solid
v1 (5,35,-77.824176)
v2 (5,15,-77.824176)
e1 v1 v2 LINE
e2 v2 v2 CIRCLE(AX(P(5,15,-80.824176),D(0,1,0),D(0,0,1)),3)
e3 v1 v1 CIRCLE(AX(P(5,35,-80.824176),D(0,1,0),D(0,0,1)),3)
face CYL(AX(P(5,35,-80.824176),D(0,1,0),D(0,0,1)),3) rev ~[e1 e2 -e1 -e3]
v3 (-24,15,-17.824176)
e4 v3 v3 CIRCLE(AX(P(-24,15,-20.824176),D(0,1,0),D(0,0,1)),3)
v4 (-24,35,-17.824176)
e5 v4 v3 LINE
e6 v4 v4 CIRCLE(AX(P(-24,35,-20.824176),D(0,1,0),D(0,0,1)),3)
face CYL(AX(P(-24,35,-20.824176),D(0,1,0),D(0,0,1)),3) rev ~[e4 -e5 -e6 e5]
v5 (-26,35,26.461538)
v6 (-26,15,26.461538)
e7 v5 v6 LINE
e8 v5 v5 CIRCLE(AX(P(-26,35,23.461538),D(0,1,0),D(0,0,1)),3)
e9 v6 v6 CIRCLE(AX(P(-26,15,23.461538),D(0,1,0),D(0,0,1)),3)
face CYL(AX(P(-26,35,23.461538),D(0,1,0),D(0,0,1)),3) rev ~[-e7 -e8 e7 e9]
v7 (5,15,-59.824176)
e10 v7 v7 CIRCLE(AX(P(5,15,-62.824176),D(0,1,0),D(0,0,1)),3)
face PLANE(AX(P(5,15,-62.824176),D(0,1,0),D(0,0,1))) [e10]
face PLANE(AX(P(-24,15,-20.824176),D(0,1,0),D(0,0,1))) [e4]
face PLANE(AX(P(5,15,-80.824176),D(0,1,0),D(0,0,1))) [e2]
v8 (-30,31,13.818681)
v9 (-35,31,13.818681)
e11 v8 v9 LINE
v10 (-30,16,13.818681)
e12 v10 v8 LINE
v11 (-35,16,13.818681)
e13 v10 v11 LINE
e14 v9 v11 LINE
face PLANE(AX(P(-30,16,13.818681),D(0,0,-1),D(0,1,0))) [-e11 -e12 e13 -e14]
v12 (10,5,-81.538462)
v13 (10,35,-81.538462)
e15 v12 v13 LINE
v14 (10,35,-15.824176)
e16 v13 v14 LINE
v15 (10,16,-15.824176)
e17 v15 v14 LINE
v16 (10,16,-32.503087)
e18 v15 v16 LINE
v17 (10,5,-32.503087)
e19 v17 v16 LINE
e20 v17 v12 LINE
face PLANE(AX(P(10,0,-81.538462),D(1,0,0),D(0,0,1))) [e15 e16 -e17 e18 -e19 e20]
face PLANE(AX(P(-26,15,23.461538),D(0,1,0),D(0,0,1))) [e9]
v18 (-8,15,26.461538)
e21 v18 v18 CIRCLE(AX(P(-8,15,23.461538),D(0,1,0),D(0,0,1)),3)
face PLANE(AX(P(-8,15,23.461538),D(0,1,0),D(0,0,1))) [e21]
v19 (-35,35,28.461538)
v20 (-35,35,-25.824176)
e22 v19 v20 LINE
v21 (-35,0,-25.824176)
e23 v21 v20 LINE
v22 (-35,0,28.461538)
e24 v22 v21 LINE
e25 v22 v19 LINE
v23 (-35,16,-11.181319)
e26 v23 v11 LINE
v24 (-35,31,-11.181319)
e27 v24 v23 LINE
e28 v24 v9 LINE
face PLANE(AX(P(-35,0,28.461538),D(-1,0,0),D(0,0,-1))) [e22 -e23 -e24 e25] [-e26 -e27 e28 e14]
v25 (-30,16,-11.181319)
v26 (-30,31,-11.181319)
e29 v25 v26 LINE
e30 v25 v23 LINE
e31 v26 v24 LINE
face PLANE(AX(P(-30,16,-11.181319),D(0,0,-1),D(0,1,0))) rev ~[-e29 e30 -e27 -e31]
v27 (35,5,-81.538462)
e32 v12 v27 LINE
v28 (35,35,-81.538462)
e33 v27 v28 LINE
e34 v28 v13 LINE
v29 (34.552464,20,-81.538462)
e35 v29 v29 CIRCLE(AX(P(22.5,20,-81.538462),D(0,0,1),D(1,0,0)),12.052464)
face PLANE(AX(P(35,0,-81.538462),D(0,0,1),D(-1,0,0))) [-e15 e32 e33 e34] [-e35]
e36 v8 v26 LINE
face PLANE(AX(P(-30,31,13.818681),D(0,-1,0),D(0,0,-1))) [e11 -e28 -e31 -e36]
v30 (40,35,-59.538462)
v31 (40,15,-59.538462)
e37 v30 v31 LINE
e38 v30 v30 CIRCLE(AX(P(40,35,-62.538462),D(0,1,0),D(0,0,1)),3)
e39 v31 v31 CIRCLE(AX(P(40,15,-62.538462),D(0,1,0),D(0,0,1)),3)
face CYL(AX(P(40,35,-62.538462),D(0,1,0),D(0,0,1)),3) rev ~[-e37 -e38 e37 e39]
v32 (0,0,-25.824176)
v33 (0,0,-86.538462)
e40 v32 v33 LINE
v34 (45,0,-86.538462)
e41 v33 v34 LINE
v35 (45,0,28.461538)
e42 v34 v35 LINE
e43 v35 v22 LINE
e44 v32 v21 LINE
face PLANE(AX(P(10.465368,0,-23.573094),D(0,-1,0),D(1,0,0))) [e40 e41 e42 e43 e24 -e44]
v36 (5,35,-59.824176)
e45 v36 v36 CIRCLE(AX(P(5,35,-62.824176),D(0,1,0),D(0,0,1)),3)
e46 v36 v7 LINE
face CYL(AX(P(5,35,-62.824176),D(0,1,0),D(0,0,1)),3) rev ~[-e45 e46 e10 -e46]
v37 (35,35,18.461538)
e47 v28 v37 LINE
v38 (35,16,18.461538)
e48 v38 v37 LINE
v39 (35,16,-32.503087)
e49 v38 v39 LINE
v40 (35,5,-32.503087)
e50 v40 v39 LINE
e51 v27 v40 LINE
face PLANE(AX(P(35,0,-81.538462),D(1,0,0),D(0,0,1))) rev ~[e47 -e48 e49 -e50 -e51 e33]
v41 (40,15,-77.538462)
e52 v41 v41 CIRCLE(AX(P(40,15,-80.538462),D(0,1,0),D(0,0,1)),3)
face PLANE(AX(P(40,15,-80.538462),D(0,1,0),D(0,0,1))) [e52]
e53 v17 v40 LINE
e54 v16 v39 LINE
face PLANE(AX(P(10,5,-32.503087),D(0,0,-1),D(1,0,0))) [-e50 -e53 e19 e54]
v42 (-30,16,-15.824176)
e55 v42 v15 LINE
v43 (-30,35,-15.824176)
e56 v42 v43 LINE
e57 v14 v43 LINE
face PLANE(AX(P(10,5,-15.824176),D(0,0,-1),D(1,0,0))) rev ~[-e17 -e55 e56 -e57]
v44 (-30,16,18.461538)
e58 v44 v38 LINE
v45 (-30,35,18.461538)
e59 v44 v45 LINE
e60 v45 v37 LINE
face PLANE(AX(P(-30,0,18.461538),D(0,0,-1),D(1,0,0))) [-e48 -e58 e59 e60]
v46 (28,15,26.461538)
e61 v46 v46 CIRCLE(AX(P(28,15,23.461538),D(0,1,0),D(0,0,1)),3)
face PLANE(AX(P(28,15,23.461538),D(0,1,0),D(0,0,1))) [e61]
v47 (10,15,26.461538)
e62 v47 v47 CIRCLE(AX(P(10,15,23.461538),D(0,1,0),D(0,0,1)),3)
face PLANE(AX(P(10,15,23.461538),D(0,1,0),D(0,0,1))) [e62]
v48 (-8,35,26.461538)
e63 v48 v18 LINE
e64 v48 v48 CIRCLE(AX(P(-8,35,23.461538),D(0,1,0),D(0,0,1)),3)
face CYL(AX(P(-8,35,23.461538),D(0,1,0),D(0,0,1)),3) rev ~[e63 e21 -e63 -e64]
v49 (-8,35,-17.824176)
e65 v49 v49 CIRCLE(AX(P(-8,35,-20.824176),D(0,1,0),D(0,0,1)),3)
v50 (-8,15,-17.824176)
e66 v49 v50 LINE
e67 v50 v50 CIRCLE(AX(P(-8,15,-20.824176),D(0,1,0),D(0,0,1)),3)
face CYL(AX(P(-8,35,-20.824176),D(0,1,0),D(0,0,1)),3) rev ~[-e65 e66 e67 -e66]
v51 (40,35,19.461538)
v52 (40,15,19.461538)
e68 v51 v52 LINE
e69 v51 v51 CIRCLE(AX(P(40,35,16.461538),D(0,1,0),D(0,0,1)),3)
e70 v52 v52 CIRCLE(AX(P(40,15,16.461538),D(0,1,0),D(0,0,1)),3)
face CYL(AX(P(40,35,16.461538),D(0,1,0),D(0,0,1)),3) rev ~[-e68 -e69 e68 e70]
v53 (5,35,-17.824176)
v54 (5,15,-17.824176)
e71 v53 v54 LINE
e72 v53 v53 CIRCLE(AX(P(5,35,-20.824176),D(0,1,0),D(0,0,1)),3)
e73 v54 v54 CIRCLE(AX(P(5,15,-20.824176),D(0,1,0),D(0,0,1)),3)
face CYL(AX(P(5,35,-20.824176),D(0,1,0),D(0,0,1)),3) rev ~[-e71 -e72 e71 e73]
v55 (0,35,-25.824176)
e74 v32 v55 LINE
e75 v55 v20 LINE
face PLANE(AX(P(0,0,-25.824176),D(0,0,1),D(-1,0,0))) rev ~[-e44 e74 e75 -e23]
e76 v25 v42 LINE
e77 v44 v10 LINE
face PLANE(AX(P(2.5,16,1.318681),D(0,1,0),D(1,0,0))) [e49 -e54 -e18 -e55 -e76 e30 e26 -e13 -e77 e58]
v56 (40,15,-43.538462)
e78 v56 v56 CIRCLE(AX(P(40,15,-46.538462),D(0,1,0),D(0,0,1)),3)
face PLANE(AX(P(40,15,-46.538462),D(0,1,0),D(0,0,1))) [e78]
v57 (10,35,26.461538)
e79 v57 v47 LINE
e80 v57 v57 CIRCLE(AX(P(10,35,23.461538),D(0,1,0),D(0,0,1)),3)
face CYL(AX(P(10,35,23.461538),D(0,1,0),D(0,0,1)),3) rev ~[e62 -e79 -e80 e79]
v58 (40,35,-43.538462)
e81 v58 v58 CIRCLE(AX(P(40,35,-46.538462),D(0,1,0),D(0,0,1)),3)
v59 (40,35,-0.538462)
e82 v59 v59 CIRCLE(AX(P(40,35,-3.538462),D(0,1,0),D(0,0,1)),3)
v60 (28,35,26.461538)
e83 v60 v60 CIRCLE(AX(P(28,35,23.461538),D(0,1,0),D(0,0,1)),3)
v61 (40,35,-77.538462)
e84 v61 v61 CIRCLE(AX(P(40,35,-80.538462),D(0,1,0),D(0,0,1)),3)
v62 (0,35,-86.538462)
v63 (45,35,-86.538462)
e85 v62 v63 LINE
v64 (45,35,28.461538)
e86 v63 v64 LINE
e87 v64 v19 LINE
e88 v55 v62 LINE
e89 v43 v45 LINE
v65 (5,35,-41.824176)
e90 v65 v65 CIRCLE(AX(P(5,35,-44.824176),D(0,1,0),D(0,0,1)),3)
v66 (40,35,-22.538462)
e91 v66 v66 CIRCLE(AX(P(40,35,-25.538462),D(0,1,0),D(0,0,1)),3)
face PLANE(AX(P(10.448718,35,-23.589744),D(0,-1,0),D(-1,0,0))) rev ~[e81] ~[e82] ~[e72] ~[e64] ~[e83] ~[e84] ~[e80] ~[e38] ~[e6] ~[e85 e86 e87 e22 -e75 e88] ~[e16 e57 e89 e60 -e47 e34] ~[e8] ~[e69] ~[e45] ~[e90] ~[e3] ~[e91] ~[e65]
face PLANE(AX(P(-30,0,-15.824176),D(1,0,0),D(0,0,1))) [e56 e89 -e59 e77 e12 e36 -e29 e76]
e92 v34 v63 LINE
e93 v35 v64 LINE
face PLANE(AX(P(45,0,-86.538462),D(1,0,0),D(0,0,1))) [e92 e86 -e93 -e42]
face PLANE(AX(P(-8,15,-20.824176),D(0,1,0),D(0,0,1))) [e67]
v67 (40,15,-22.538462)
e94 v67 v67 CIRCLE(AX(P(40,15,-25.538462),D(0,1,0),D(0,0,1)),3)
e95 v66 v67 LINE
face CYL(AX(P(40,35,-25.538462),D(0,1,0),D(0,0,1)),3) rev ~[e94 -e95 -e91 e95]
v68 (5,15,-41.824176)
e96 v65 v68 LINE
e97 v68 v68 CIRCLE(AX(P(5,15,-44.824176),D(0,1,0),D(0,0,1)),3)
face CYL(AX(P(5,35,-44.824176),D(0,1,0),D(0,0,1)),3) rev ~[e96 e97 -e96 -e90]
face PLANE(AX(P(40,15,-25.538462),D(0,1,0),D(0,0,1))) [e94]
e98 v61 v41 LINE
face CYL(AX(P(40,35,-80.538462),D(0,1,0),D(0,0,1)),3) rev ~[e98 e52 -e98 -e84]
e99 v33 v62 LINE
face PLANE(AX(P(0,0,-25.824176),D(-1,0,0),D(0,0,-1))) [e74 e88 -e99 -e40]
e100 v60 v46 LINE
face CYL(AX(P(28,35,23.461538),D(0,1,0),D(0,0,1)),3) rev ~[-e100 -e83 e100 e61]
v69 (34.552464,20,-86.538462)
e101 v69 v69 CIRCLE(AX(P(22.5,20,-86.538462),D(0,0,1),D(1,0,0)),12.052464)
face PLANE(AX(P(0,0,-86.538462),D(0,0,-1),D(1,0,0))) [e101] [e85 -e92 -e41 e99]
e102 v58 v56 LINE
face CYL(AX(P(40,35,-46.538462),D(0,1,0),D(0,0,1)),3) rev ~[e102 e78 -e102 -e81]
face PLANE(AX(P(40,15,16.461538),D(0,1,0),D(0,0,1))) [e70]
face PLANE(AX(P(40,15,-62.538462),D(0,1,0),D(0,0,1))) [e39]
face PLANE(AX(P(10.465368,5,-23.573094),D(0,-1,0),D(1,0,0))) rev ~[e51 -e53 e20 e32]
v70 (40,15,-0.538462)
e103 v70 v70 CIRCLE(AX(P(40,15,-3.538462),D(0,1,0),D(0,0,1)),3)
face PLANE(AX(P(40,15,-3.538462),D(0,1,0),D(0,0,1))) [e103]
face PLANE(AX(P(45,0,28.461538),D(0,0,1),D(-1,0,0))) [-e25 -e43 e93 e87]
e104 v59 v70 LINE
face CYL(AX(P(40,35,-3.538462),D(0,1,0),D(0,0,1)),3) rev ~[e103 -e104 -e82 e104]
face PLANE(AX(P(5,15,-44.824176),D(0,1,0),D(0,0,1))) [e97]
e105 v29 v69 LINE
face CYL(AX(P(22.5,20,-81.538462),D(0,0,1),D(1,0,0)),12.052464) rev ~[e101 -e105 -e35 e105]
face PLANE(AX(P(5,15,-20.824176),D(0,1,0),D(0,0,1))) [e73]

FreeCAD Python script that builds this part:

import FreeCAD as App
import Part
import Sketcher

V = App.Vector
Q = App.Units.Quantity


def add_polygon(sketch, points):
    """Adds a closed chain of lines whose ends are joined by coincident constraints."""
    first, n = sketch.GeometryCount, len(points)
    for a, b in zip(points, points[1:] + points[:1]):
        sketch.addGeometry(Part.LineSegment(App.Vector(*a, 0), App.Vector(*b, 0)), False)
    for i in range(n):
        sketch.addConstraint(Sketcher.Constraint("Coincident", first + i, 2, first + (i + 1) % n, 1))

doc = App.newDocument("Part")
params = doc.addObject("Spreadsheet::Sheet", "Params")
for row, (alias, value) in enumerate([
    ("sketch1_width", "35 mm"),
    ("sketch1_width2", "80 mm"),
    ("sketch1_width3", "40 mm"),
    ("sketch1_width4", "25 mm"),
    ("sketch1_height", "115 mm"),
    ("pad1_length", "35 mm"),
    ("sketch2_width", "65 mm"),
    ("sketch2_width2", "40 mm"),
    ("sketch2_height", "100 mm"),
    ("pad2_length", "5 mm"),
    ("sketch3_diameter", "6 mm"),
    ("pocket1_length", "20 mm"),
    ("sketch4_width", "25 mm"),
    ("pad3_length", "11 mm"),
    ("sketch5_width", "65 mm"),
    ("pad4_length", "11 mm"),
    ("pocket2_length", "11 mm"),
    ("sketch7_width", "15 mm"),
    ("sketch7_height", "25 mm"),
    ("pocket3_length", "11 mm"),
], start=1):
    params.set(f"A{row}", alias)
    params.set(f"B{row}", "=" + value)
    params.setAlias(f"B{row}", alias)

body = doc.addObject("PartDesign::Body", "Body")

# Sketch on XZ plane
sketch1 = body.newObject("Sketcher::SketchObject", "Sketch")
sketch1.AttachmentSupport = (doc.getObject("XZ_Plane"), [""])
sketch1.MapMode = "FlatFace"
add_polygon(sketch1, [(0, -25.824176), (-35, -25.824176), (-35, 28.461538), (45, 28.461538), (45, -86.538462), (0, -86.538462)])  # lines 0-5
add_polygon(sketch1, [(-30, 18.461538), (-30, -15.824176), (10, -15.824176), (10, -81.538462), (35, -81.538462), (35, 18.461538)])  # lines 6-11
sketch1.addConstraint([
    Sketcher.Constraint("Horizontal", 0),
    Sketcher.Constraint("Vertical", 1),
    Sketcher.Constraint("Horizontal", 2),
    Sketcher.Constraint("Vertical", 3),
    Sketcher.Constraint("Horizontal", 4),
    Sketcher.Constraint("Vertical", 5),
    Sketcher.Constraint("Vertical", 6),
    Sketcher.Constraint("Horizontal", 7),
    Sketcher.Constraint("Vertical", 8),
    Sketcher.Constraint("Horizontal", 9),
    Sketcher.Constraint("Vertical", 10),
    Sketcher.Constraint("Horizontal", 11),
    Sketcher.Constraint("PointOnObject", 4, 2, -2),
    Sketcher.Constraint("DistanceX", 0, 2, 0, 1, Q("35 mm")),
    Sketcher.Constraint("DistanceX", 2, 1, 2, 2, Q("80 mm")),
    Sketcher.Constraint("DistanceX", 7, 1, 7, 2, Q("40 mm")),
    Sketcher.Constraint("DistanceX", 9, 1, 9, 2, Q("25 mm")),
    Sketcher.Constraint("DistanceY", 3, 2, 3, 1, Q("115 mm")),
    Sketcher.Constraint("DistanceY", 10, 1, 10, 2, Q("100 mm")),
    Sketcher.Constraint("DistanceX", 6, 2, -1, 1, Q("30 mm")),
    Sketcher.Constraint("DistanceY", 0, 2, 6, 2, Q("10 mm")),
    Sketcher.Constraint("DistanceY", 4, 2, 8, 2, Q("5 mm")),
    Sketcher.Constraint("DistanceY", 1, 1, 1, 2, Q("54.285714 mm")),
    Sketcher.Constraint("DistanceY", -1, 1, 1, 2, Q("28.461538 mm")),
])
sketch1.setExpression("Constraints[25]", "Params.sketch1_width")
sketch1.setExpression("Constraints[26]", "Params.sketch1_width2")
sketch1.setExpression("Constraints[27]", "Params.sketch1_width3")
sketch1.setExpression("Constraints[28]", "Params.sketch1_width4")
sketch1.setExpression("Constraints[29]", "Params.sketch1_height")
pad1 = body.newObject("PartDesign::Pad", "Pad")
pad1.Profile = sketch1
pad1.setExpression("Length", "Params.pad1_length")
pad1.Reversed = True

# Sketch on XZ plane
sketch2 = body.newObject("Sketcher::SketchObject", "Sketch001")
sketch2.AttachmentSupport = (doc.getObject("XZ_Plane"), [""])
sketch2.MapMode = "FlatFace"
add_polygon(sketch2, [(35, -81.538462), (35, 18.461538), (-30, 18.461538), (-30, -15.824176), (10, -15.824176), (10, -81.538462)])  # lines 0-5
sketch2.addConstraint([
    Sketcher.Constraint("Vertical", 0),
    Sketcher.Constraint("Horizontal", 1),
    Sketcher.Constraint("Vertical", 2),
    Sketcher.Constraint("Horizontal", 3),
    Sketcher.Constraint("Vertical", 4),
    Sketcher.Constraint("Horizontal", 5),
    Sketcher.Constraint("DistanceX", 1, 2, 1, 1, Q("65 mm")),
    Sketcher.Constraint("DistanceX", 3, 1, 3, 2, Q("40 mm")),
    Sketcher.Constraint("DistanceY", 0, 1, 0, 2, Q("100 mm")),
    Sketcher.Constraint("DistanceX", -1, 1, 0, 2, Q("35 mm")),
    Sketcher.Constraint("DistanceY", 2, 2, 2, 1, Q("34.285714 mm")),
    Sketcher.Constraint("DistanceY", -1, 1, 0, 2, Q("18.461538 mm")),
])
sketch2.setExpression("Constraints[12]", "Params.sketch2_width")
sketch2.setExpression("Constraints[13]", "Params.sketch2_width2")
sketch2.setExpression("Constraints[14]", "Params.sketch2_height")
pad2 = body.newObject("PartDesign::Pad", "Pad001")
pad2.Profile = sketch2
pad2.setExpression("Length", "Params.pad2_length")
pad2.Reversed = True

# Sketch on XZ plane
sketch3 = body.newObject("Sketcher::SketchObject", "Sketch002")
sketch3.AttachmentSupport = (doc.getObject("XZ_Plane"), [""])
sketch3.MapMode = "FlatFace"
sketch3.AttachmentOffset = App.Placement(V(0, 0, -35), App.Rotation())
sketch3.addGeometry([
    Part.Circle(V(40, -80.538462, 0), V(0, 0, 1), 3),  # 0
    Part.Circle(V(40, -62.538462, 0), V(0, 0, 1), 3),  # 1
    Part.Circle(V(40, -46.538462, 0), V(0, 0, 1), 3),  # 2
    Part.Circle(V(40, -25.538462, 0), V(0, 0, 1), 3),  # 3
    Part.Circle(V(40, -3.538462, 0), V(0, 0, 1), 3),  # 4
    Part.Circle(V(40, 16.461538, 0), V(0, 0, 1), 3),  # 5
    Part.Circle(V(5, -80.824176, 0), V(0, 0, 1), 3),  # 6
    Part.Circle(V(5, -62.824176, 0), V(0, 0, 1), 3),  # 7
    Part.Circle(V(5, -44.824176, 0), V(0, 0, 1), 3),  # 8
    Part.Circle(V(-24, -20.824176, 0), V(0, 0, 1), 3),  # 9
    Part.Circle(V(-8, -20.824176, 0), V(0, 0, 1), 3),  # 10
    Part.Circle(V(5, -20.824176, 0), V(0, 0, 1), 3),  # 11
    Part.Circle(V(-26, 23.461538, 0), V(0, 0, 1), 3),  # 12
    Part.Circle(V(-8, 23.461538, 0), V(0, 0, 1), 3),  # 13
    Part.Circle(V(10, 23.461538, 0), V(0, 0, 1), 3),  # 14
    Part.Circle(V(28, 23.461538, 0), V(0, 0, 1), 3),  # 15
], False)
sketch3.addConstraint([
    Sketcher.Constraint("Equal", 0, 1),
    Sketcher.Constraint("Equal", 1, 2),
    Sketcher.Constraint("Equal", 2, 3),
    Sketcher.Constraint("Equal", 3, 4),
    Sketcher.Constraint("Equal", 4, 5),
    Sketcher.Constraint("Equal", 5, 6),
    Sketcher.Constraint("Equal", 6, 7),
    Sketcher.Constraint("Equal", 7, 8),
    Sketcher.Constraint("Equal", 8, 9),
    Sketcher.Constraint("Equal", 9, 10),
    Sketcher.Constraint("Equal", 10, 11),
    Sketcher.Constraint("Equal", 11, 12),
    Sketcher.Constraint("Equal", 12, 13),
    Sketcher.Constraint("Equal", 13, 14),
    Sketcher.Constraint("Equal", 14, 15),
    Sketcher.Constraint("Horizontal", 9, 3, 10, 3),
    Sketcher.Constraint("Horizontal", 10, 3, 11, 3),
    Sketcher.Constraint("Horizontal", 12, 3, 13, 3),
    Sketcher.Constraint("Horizontal", 13, 3, 14, 3),
    Sketcher.Constraint("Horizontal", 14, 3, 15, 3),
    Sketcher.Constraint("Vertical", 0, 3, 1, 3),
    Sketcher.Constraint("Vertical", 1, 3, 2, 3),
    Sketcher.Constraint("Vertical", 2, 3, 3, 3),
    Sketcher.Constraint("Vertical", 3, 3, 4, 3),
    Sketcher.Constraint("Vertical", 4, 3, 5, 3),
    Sketcher.Constraint("Vertical", 6, 3, 7, 3),
    Sketcher.Constraint("Vertical", 7, 3, 8, 3),
    Sketcher.Constraint("Vertical", 8, 3, 11, 3),
    Sketcher.Constraint("Vertical", 10, 3, 13, 3),
    Sketcher.Constraint("Diameter", 0, Q("6 mm")),
    Sketcher.Constraint("DistanceX", -1, 1, 0, 3, Q("40 mm")),
    Sketcher.Constraint("DistanceX", -1, 1, 6, 3, Q("5 mm")),
    Sketcher.Constraint("DistanceX", 9, 3, -1, 1, Q("24 mm")),
    Sketcher.Constraint("DistanceX", 10, 3, -1, 1, Q("8 mm")),
    Sketcher.Constraint("DistanceX", 12, 3, -1, 1, Q("26 mm")),
    Sketcher.Constraint("DistanceX", -1, 1, 14, 3, Q("10 mm")),
    Sketcher.Constraint("DistanceX", -1, 1, 15, 3, Q("28 mm")),
    Sketcher.Constraint("DistanceY", 0, 3, 1, 3, Q("18 mm")),
    Sketcher.Constraint("DistanceY", 1, 3, 2, 3, Q("16 mm")),
    Sketcher.Constraint("DistanceY", 2, 3, 3, 3, Q("21 mm")),
    Sketcher.Constraint("DistanceY", 3, 3, 4, 3, Q("22 mm")),
    Sketcher.Constraint("DistanceY", 4, 3, 5, 3, Q("20 mm")),
    Sketcher.Constraint("DistanceY", 6, 3, 7, 3, Q("18 mm")),
    Sketcher.Constraint("DistanceY", 7, 3, 8, 3, Q("18 mm")),
    Sketcher.Constraint("DistanceY", 8, 3, 9, 3, Q("24 mm")),
    Sketcher.Constraint("DistanceY", 5, 3, 12, 3, Q("7 mm")),
    Sketcher.Constraint("DistanceY", 0, 3, -1, 1, Q("80.538462 mm")),
    Sketcher.Constraint("DistanceY", 6, 3, -1, 1, Q("80.824176 mm")),
])
sketch3.setExpression("Constraints[29]", "Params.sketch3_diameter")
pocket1 = body.newObject("PartDesign::Pocket", "Pocket")
pocket1.Profile = sketch3
pocket1.setExpression("Length", "Params.pocket1_length")
pocket1.Reversed = True

# Sketch on XZ plane
sketch4 = body.newObject("Sketcher::SketchObject", "Sketch003")
sketch4.AttachmentSupport = (doc.getObject("XZ_Plane"), [""])
sketch4.MapMode = "FlatFace"
sketch4.AttachmentOffset = App.Placement(V(0, 0, -5), App.Rotation())
add_polygon(sketch4, [(10, -32.503087), (10, -15.824176), (35, -15.824176), (35, -32.503087)])  # lines 0-3
sketch4.addConstraint([
    Sketcher.Constraint("Vertical", 0),
    Sketcher.Constraint("Horizontal", 1),
    Sketcher.Constraint("Vertical", 2),
    Sketcher.Constraint("Horizontal", 3),
    Sketcher.Constraint("DistanceX", 1, 1, 1, 2, Q("25 mm")),
    Sketcher.Constraint("DistanceX", -1, 1, 0, 2, Q("10 mm")),
    Sketcher.Constraint("DistanceY", 0, 1, 0, 2, Q("16.678911 mm")),
    Sketcher.Constraint("DistanceY", 0, 2, -1, 1, Q("15.824176 mm")),
])
sketch4.setExpression("Constraints[8]", "Params.sketch4_width")
pad3 = body.newObject("PartDesign::Pad", "Pad002")
pad3.Profile = sketch4
pad3.setExpression("Length", "Params.pad3_length")
pad3.Reversed = True

# Sketch on XZ plane
sketch5 = body.newObject("Sketcher::SketchObject", "Sketch004")
sketch5.AttachmentSupport = (doc.getObject("XZ_Plane"), [""])
sketch5.MapMode = "FlatFace"
sketch5.AttachmentOffset = App.Placement(V(0, 0, -5), App.Rotation())
add_polygon(sketch5, [(-30, -15.824176), (-30, 18.461538), (35, 18.461538), (35, -15.824176)])  # lines 0-3
sketch5.addConstraint([
    Sketcher.Constraint("Vertical", 0),
    Sketcher.Constraint("Horizontal", 1),
    Sketcher.Constraint("Vertical", 2),
    Sketcher.Constraint("Horizontal", 3),
    Sketcher.Constraint("DistanceX", 1, 1, 1, 2, Q("65 mm")),
    Sketcher.Constraint("DistanceX", 0, 2, -1, 1, Q("30 mm")),
    Sketcher.Constraint("DistanceY", 0, 1, 0, 2, Q("34.285714 mm")),
    Sketcher.Constraint("DistanceY", -1, 1, 0, 2, Q("18.461538 mm")),
])
sketch5.setExpression("Constraints[8]", "Params.sketch5_width")
pad4 = body.newObject("PartDesign::Pad", "Pad003")
pad4.Profile = sketch5
pad4.setExpression("Length", "Params.pad4_length")
pad4.Reversed = True

# Sketch on XY plane
sketch6 = body.newObject("Sketcher::SketchObject", "Sketch005")
sketch6.AttachmentSupport = (doc.getObject("XY_Plane"), [""])
sketch6.MapMode = "FlatFace"
sketch6.AttachmentOffset = App.Placement(V(0, 0, -81.538462), App.Rotation())
sketch6.addGeometry(Part.Circle(V(22.5, 20, 0), V(0, 0, 1), 12.052464), False)
sketch6.addConstraint([
    Sketcher.Constraint("DistanceY", -1, 1, 0, 3, Q("20 mm")),
    Sketcher.Constraint("DistanceX", -1, 1, 0, 3, Q("22.5 mm")),
    Sketcher.Constraint("Diameter", 0, Q("24.104929 mm")),
])
pocket2 = body.newObject("PartDesign::Pocket", "Pocket001")
pocket2.Profile = sketch6
pocket2.setExpression("Length", "Params.pocket2_length")

# Sketch on YZ plane
sketch7 = body.newObject("Sketcher::SketchObject", "Sketch006")
sketch7.AttachmentSupport = (doc.getObject("YZ_Plane"), [""])
sketch7.MapMode = "FlatFace"
sketch7.AttachmentOffset = App.Placement(V(0, 0, -30), App.Rotation())
add_polygon(sketch7, [(31, 13.818681), (16, 13.818681), (16, -11.181319), (31, -11.181319)])  # lines 0-3
sketch7.addConstraint([
    Sketcher.Constraint("Horizontal", 0),
    Sketcher.Constraint("Vertical", 1),
    Sketcher.Constraint("Horizontal", 2),
    Sketcher.Constraint("Vertical", 3),
    Sketcher.Constraint("DistanceX", 0, 2, 0, 1, Q("15 mm")),
    Sketcher.Constraint("DistanceY", 1, 2, 1, 1, Q("25 mm")),
    Sketcher.Constraint("DistanceX", -1, 1, 0, 2, Q("16 mm")),
    Sketcher.Constraint("DistanceY", -1, 1, 0, 2, Q("13.818681 mm")),
])
sketch7.setExpression("Constraints[8]", "Params.sketch7_width")
sketch7.setExpression("Constraints[9]", "Params.sketch7_height")
pocket3 = body.newObject("PartDesign::Pocket", "Pocket002")
pocket3.Profile = sketch7
pocket3.setExpression("Length", "Params.pocket3_length")

doc.recompute()
